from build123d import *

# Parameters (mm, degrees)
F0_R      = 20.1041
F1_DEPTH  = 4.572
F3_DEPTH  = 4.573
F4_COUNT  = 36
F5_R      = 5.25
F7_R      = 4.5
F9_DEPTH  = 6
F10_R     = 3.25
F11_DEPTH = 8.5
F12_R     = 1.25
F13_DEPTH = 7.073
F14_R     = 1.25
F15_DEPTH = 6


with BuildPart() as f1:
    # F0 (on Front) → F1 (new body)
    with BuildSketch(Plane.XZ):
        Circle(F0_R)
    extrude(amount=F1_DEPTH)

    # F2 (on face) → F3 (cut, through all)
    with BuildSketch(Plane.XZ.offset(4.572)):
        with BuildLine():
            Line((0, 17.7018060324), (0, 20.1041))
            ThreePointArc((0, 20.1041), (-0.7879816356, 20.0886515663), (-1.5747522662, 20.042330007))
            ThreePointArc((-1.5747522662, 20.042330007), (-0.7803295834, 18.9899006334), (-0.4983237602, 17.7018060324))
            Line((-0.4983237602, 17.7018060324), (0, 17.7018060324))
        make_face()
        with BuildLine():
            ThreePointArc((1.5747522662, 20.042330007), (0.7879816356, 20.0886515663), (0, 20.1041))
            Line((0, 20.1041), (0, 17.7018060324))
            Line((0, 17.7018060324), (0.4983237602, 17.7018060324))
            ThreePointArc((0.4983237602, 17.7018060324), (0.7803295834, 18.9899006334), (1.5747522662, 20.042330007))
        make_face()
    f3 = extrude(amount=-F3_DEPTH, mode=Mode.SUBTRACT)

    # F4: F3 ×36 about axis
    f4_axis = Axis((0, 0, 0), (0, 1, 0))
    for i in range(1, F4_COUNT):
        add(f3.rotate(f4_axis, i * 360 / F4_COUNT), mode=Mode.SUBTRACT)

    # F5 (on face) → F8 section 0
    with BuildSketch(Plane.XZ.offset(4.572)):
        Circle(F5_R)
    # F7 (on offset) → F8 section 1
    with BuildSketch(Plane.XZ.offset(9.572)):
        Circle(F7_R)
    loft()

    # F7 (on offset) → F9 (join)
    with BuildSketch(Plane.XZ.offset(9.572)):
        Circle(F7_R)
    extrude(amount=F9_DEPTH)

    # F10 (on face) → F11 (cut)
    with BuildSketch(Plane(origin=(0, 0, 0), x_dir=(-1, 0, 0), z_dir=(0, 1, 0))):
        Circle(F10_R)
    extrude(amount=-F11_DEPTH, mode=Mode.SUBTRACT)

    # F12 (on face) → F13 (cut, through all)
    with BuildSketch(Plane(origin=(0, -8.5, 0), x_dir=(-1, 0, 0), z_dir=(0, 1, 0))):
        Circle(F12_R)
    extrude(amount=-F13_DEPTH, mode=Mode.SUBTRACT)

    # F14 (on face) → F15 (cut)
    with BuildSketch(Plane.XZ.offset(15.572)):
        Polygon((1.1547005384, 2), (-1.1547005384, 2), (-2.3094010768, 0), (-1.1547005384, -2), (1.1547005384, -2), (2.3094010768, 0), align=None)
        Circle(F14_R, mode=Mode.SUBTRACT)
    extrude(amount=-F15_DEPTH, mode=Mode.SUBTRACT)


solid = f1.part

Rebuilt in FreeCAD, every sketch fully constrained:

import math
import FreeCAD as App
import Part
import Sketcher

V = App.Vector
Q = App.Units.Quantity


def add_polygon(sketch, points):
    """Adds a closed chain of lines whose ends are joined by coincident constraints."""
    first, n = sketch.GeometryCount, len(points)
    for a, b in zip(points, points[1:] + points[:1]):
        sketch.addGeometry(Part.LineSegment(App.Vector(*a, 0), App.Vector(*b, 0)), False)
    for i in range(n):
        sketch.addConstraint(Sketcher.Constraint("Coincident", first + i, 2, first + (i + 1) % n, 1))

doc = App.newDocument("Part")
params = doc.addObject("Spreadsheet::Sheet", "Params")
for row, (alias, value) in enumerate([
    ("pad1_length", "4.572 mm"),
    ("sketch3_diameter", "10.5 mm"),
    ("sketch4_diameter", "9 mm"),
    ("sketch5_diameter", "9 mm"),
    ("pad2_length", "6 mm"),
    ("sketch6_diameter", "6.5 mm"),
    ("pocket2_length", "8.5 mm"),
    ("sketch7_diameter", "2.5 mm"),
    ("sketch8_diameter", "2.5 mm"),
    ("pocket4_length", "6 mm"),
], start=1):
    params.set(f"A{row}", alias)
    params.set(f"B{row}", "=" + value)
    params.setAlias(f"B{row}", alias)

body = doc.addObject("PartDesign::Body", "Body")

# Sketch on XZ plane
sketch1 = body.newObject("Sketcher::SketchObject", "Sketch")
sketch1.AttachmentSupport = (doc.getObject("XZ_Plane"), [""])
sketch1.MapMode = "FlatFace"
sketch1.addGeometry(Part.Circle(V(0, 0, 0), V(0, 0, 1), 20), False)
sketch1.addConstraint([
    Sketcher.Constraint("Coincident", 0, 3, -1, 1),
    Sketcher.Constraint("Diameter", 0, Q("40.2082 mm")),
])
pad1 = body.newObject("PartDesign::Pad", "Pad")
pad1.Profile = sketch1
pad1.setExpression("Length", "Params.pad1_length")

# Sketch on XZ plane
sketch2 = body.newObject("Sketcher::SketchObject", "Sketch001")
sketch2.AttachmentSupport = (doc.getObject("XZ_Plane"), [""])
sketch2.MapMode = "FlatFace"
sketch2.AttachmentOffset = App.Placement(V(0, 0, 4.572), App.Rotation())
sketch2.addGeometry([
    Part.ArcOfCircle(Part.Circle(V(0, 0, 0), V(0, 0, 1), 20.1), math.radians(90), math.radians(94.49)),  # 0
    Part.ArcOfCircle(Part.Circle(V(-3.6, 17.7, 0), V(0, 0, 1), 3.1), math.radians(0), math.radians(49)),  # 1
    Part.LineSegment(V(-0.5, 17.7, 0), V(0.5, 17.7, 0)),  # 2
    Part.ArcOfCircle(Part.Circle(V(3.6, 17.7, 0), V(0, 0, 1), 3.1), math.radians(131), math.radians(180)),  # 3
    Part.ArcOfCircle(Part.Circle(V(0, 0, 0), V(0, 0, 1), 20.1), math.radians(85.51), math.radians(90)),  # 4
], False)
sketch2.addConstraint([
    Sketcher.Constraint("Coincident", 0, 2, 1, 2),
    Sketcher.Constraint("Coincident", 1, 1, 2, 1),
    Sketcher.Constraint("Coincident", 2, 2, 3, 2),
    Sketcher.Constraint("Coincident", 3, 1, 4, 1),
    Sketcher.Constraint("Tangent", 4, 2, 0, 1),
    Sketcher.Constraint("Horizontal", 2),
    Sketcher.Constraint("Coincident", 0, 3, -1, 1),
    Sketcher.Constraint("Equal", 1, 3),
    Sketcher.Constraint("Equal", 0, 4),
    Sketcher.Constraint("Symmetric", 1, 3, 3, 3, -2),
    Sketcher.Constraint("PointOnObject", 4, 2, -2),
    Sketcher.Constraint("Horizontal", 3, 3, 1, 1),
    Sketcher.Constraint("Radius", 0, Q("20.1041 mm")),
    Sketcher.Constraint("Radius", 1, Q("3.082764 mm")),
    Sketcher.Constraint("DistanceX", 2, 1, 2, 2, Q("0.996648 mm")),
    Sketcher.Constraint("DistanceY", -1, 1, 0, 2, Q("20.04233 mm")),
])
pocket1 = body.newObject("PartDesign::Pocket", "Pocket")
pocket1.Profile = sketch2
pocket1.Type = "ThroughAll"
doc.recompute()

polarpattern = body.newObject("PartDesign::PolarPattern", "PolarPattern")
polarpattern.Originals = [pocket1]
polarpattern.Axis = (doc.getObject("Y_Axis"), [""])
polarpattern.Angle = 360
polarpattern.Occurrences = 36
body.Tip = polarpattern

# Sketch on XZ plane
sketch3 = body.newObject("Sketcher::SketchObject", "Sketch002")
sketch3.AttachmentSupport = (doc.getObject("XZ_Plane"), [""])
sketch3.MapMode = "FlatFace"
sketch3.AttachmentOffset = App.Placement(V(0, 0, 4.572), App.Rotation())
sketch3.addGeometry(Part.Circle(V(0, 0, 0), V(0, 0, 1), 5), False)
sketch3.addConstraint([
    Sketcher.Constraint("Coincident", 0, 3, -1, 1),
    Sketcher.Constraint("Diameter", 0, Q("10.5 mm")),
])
sketch3.setExpression("Constraints[1]", "Params.sketch3_diameter")

# Sketch on XZ plane
sketch4 = body.newObject("Sketcher::SketchObject", "Sketch003")
sketch4.AttachmentSupport = (doc.getObject("XZ_Plane"), [""])
sketch4.MapMode = "FlatFace"
sketch4.AttachmentOffset = App.Placement(V(0, 0, 9.572), App.Rotation())
sketch4.addGeometry(Part.Circle(V(0, 0, 0), V(0, 0, 1), 4.5), False)
sketch4.addConstraint([
    Sketcher.Constraint("Coincident", 0, 3, -1, 1),
    Sketcher.Constraint("Diameter", 0, Q("9 mm")),
])
sketch4.setExpression("Constraints[1]", "Params.sketch4_diameter")

additiveloft = body.newObject("PartDesign::AdditiveLoft", "AdditiveLoft")
additiveloft.Profile = sketch3
additiveloft.Sections = [sketch4]

# Sketch on XZ plane
sketch5 = body.newObject("Sketcher::SketchObject", "Sketch004")
sketch5.AttachmentSupport = (doc.getObject("XZ_Plane"), [""])
sketch5.MapMode = "FlatFace"
sketch5.AttachmentOffset = App.Placement(V(0, 0, 9.572), App.Rotation())
sketch5.addGeometry(Part.Circle(V(0, 0, 0), V(0, 0, 1), 4.5), False)
sketch5.addConstraint([
    Sketcher.Constraint("Coincident", 0, 3, -1, 1),
    Sketcher.Constraint("Diameter", 0, Q("9 mm")),
])
sketch5.setExpression("Constraints[1]", "Params.sketch5_diameter")
pad2 = body.newObject("PartDesign::Pad", "Pad001")
pad2.Profile = sketch5
pad2.setExpression("Length", "Params.pad2_length")

# Sketch on XZ plane
sketch6 = body.newObject("Sketcher::SketchObject", "Sketch005")
sketch6.AttachmentSupport = (doc.getObject("XZ_Plane"), [""])
sketch6.MapMode = "FlatFace"
sketch6.addGeometry(Part.Circle(V(0, 0, 0), V(0, 0, 1), 3.2), False)
sketch6.addConstraint([
    Sketcher.Constraint("Coincident", 0, 3, -1, 1),
    Sketcher.Constraint("Diameter", 0, Q("6.5 mm")),
])
sketch6.setExpression("Constraints[1]", "Params.sketch6_diameter")
pocket2 = body.newObject("PartDesign::Pocket", "Pocket001")
pocket2.Profile = sketch6
pocket2.setExpression("Length", "Params.pocket2_length")
pocket2.Reversed = True

# Sketch on XZ plane
sketch7 = body.newObject("Sketcher::SketchObject", "Sketch006")
sketch7.AttachmentSupport = (doc.getObject("XZ_Plane"), [""])
sketch7.MapMode = "FlatFace"
sketch7.AttachmentOffset = App.Placement(V(0, 0, 8.5), App.Rotation())
sketch7.addGeometry(Part.Circle(V(0, 0, 0), V(0, 0, 1), 1.2), False)
sketch7.addConstraint([
    Sketcher.Constraint("Coincident", 0, 3, -1, 1),
    Sketcher.Constraint("Diameter", 0, Q("2.5 mm")),
])
sketch7.setExpression("Constraints[1]", "Params.sketch7_diameter")
pocket3 = body.newObject("PartDesign::Pocket", "Pocket002")
pocket3.Profile = sketch7
pocket3.Type = "ThroughAll"
pocket3.Reversed = True

# Sketch on XZ plane
sketch8 = body.newObject("Sketcher::SketchObject", "Sketch007")
sketch8.AttachmentSupport = (doc.getObject("XZ_Plane"), [""])
sketch8.MapMode = "FlatFace"
sketch8.AttachmentOffset = App.Placement(V(0, 0, 15.572), App.Rotation())
add_polygon(sketch8, [(1.2, 2), (-1.2, 2), (-2.3, 0), (-1.2, -2), (1.2, -2), (2.3, 0)])  # lines 0-5
sketch8.addGeometry(Part.Circle(V(0, 0, 0), V(0, 0, 1), 1.2), False)  # 6
sketch8.addConstraint([
    Sketcher.Constraint("Horizontal", 0),
    Sketcher.Constraint("Horizontal", 3),
    Sketcher.Constraint("Coincident", 6, 3, -1, 1),
    Sketcher.Constraint("Symmetric", 0, 2, 3, 2, -1, 1),
    Sketcher.Constraint("Symmetric", 1, 2, 4, 2, -1, 1),
    Sketcher.Constraint("PointOnObject", 1, 2, -1),
    Sketcher.Constraint("Parallel", 2, 5),
    Sketcher.Constraint("Vertical", 0, 2, 2, 2),
    Sketcher.Constraint("Diameter", 6, Q("2.5 mm")),
    Sketcher.Constraint("Angle", 1, Q("-120 deg")),
    Sketcher.Constraint("DistanceY", -1, 1, 0, 2, Q("2 mm")),
    Sketcher.Constraint("DistanceX", 0, 2, 0, 1, Q("2.309401 mm")),
])
sketch8.setExpression("Constraints[14]", "Params.sketch8_diameter")
pocket4 = body.newObject("PartDesign::Pocket", "Pocket003")
pocket4.Profile = sketch8
pocket4.setExpression("Length", "Params.pocket4_length")

doc.recompute()
